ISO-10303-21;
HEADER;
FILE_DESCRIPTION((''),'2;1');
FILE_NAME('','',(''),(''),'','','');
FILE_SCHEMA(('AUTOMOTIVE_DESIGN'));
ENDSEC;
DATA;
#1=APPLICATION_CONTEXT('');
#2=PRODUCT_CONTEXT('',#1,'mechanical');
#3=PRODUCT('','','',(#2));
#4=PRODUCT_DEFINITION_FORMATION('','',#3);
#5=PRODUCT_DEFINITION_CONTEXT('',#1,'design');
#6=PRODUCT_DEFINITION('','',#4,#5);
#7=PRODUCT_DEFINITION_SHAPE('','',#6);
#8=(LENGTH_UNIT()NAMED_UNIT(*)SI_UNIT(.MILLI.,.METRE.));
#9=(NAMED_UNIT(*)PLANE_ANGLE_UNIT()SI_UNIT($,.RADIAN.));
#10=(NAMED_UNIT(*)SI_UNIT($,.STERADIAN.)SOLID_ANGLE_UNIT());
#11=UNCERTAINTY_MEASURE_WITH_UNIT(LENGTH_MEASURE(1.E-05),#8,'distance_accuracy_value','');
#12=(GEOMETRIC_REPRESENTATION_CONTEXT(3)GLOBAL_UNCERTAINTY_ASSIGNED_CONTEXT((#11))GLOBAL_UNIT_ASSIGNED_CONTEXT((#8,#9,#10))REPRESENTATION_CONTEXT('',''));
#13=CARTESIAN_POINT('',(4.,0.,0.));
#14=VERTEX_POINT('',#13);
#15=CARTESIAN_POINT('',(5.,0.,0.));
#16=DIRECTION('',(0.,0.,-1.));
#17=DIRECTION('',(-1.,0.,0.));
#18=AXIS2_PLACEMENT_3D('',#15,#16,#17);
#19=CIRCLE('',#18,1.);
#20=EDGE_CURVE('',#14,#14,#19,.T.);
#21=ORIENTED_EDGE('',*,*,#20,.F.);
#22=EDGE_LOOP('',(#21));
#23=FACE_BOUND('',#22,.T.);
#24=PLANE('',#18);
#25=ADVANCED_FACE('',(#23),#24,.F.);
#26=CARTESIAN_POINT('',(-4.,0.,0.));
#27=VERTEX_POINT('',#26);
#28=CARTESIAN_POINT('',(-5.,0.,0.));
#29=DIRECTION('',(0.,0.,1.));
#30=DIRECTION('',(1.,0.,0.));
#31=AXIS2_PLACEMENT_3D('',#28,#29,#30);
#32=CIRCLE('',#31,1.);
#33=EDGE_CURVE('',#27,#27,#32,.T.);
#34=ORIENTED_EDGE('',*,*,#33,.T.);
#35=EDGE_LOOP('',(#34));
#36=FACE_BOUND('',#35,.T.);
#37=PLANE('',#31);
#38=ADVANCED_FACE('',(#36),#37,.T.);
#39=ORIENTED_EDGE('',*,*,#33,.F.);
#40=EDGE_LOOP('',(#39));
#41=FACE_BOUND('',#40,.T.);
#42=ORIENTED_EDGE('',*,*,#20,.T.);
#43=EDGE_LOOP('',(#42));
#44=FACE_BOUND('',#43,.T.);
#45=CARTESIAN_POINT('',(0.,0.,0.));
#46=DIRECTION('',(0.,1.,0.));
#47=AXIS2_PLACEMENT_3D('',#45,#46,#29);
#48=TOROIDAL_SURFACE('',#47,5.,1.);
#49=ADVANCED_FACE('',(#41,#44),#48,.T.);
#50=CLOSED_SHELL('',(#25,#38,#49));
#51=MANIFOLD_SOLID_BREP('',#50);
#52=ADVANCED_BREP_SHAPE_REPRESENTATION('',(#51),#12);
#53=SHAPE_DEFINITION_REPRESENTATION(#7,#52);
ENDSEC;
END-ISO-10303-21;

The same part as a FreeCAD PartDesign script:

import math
import FreeCAD as App
import Part
import Sketcher
from FreeCAD import Vector
Q = App.Units.Quantity

doc = App.newDocument("Part")
body = doc.addObject("PartDesign::Body", "Body")

# Sketch on XY plane
sketch1 = body.newObject("Sketcher::SketchObject", "Sketch")
sketch1.AttachmentSupport = (doc.getObject("XY_Plane"), [""])
sketch1.MapMode = "FlatFace"
sketch1.addGeometry(Part.Circle(Vector(-5, 0, 0), Vector(0, 0, 1), 1), False)
sketch1.addConstraint(Sketcher.Constraint("PointOnObject", 0, 3, -1))
sketch1.addConstraint(Sketcher.Constraint("Diameter", 0, Q("2 mm")))
sketch1.addConstraint(Sketcher.Constraint("DistanceX", 0, 3, -1, 1, Q("5 mm")))

# Sketch on XZ plane
sketch2 = body.newObject("Sketcher::SketchObject", "Sketch001")
sketch2.AttachmentSupport = (doc.getObject("XZ_Plane"), [""])
sketch2.MapMode = "FlatFace"
sketch2.addGeometry(Part.ArcOfCircle(Part.Circle(Vector(0, 0, 0), Vector(0, 0, 1), 5), math.radians(180), math.radians(360)), False)
sketch2.addConstraint(Sketcher.Constraint("Coincident", 0, 3, -1, 1))
sketch2.addConstraint(Sketcher.Constraint("PointOnObject", 0, 1, -1))
sketch2.addConstraint(Sketcher.Constraint("PointOnObject", 0, 2, -1))
sketch2.addConstraint(Sketcher.Constraint("Radius", 0, Q("5 mm")))
doc.recompute()

additivepipe = body.newObject("PartDesign::AdditivePipe", "AdditivePipe")
additivepipe.Profile = sketch1
additivepipe.Spine = (sketch2, ["Edge1"])

doc.recompute()
